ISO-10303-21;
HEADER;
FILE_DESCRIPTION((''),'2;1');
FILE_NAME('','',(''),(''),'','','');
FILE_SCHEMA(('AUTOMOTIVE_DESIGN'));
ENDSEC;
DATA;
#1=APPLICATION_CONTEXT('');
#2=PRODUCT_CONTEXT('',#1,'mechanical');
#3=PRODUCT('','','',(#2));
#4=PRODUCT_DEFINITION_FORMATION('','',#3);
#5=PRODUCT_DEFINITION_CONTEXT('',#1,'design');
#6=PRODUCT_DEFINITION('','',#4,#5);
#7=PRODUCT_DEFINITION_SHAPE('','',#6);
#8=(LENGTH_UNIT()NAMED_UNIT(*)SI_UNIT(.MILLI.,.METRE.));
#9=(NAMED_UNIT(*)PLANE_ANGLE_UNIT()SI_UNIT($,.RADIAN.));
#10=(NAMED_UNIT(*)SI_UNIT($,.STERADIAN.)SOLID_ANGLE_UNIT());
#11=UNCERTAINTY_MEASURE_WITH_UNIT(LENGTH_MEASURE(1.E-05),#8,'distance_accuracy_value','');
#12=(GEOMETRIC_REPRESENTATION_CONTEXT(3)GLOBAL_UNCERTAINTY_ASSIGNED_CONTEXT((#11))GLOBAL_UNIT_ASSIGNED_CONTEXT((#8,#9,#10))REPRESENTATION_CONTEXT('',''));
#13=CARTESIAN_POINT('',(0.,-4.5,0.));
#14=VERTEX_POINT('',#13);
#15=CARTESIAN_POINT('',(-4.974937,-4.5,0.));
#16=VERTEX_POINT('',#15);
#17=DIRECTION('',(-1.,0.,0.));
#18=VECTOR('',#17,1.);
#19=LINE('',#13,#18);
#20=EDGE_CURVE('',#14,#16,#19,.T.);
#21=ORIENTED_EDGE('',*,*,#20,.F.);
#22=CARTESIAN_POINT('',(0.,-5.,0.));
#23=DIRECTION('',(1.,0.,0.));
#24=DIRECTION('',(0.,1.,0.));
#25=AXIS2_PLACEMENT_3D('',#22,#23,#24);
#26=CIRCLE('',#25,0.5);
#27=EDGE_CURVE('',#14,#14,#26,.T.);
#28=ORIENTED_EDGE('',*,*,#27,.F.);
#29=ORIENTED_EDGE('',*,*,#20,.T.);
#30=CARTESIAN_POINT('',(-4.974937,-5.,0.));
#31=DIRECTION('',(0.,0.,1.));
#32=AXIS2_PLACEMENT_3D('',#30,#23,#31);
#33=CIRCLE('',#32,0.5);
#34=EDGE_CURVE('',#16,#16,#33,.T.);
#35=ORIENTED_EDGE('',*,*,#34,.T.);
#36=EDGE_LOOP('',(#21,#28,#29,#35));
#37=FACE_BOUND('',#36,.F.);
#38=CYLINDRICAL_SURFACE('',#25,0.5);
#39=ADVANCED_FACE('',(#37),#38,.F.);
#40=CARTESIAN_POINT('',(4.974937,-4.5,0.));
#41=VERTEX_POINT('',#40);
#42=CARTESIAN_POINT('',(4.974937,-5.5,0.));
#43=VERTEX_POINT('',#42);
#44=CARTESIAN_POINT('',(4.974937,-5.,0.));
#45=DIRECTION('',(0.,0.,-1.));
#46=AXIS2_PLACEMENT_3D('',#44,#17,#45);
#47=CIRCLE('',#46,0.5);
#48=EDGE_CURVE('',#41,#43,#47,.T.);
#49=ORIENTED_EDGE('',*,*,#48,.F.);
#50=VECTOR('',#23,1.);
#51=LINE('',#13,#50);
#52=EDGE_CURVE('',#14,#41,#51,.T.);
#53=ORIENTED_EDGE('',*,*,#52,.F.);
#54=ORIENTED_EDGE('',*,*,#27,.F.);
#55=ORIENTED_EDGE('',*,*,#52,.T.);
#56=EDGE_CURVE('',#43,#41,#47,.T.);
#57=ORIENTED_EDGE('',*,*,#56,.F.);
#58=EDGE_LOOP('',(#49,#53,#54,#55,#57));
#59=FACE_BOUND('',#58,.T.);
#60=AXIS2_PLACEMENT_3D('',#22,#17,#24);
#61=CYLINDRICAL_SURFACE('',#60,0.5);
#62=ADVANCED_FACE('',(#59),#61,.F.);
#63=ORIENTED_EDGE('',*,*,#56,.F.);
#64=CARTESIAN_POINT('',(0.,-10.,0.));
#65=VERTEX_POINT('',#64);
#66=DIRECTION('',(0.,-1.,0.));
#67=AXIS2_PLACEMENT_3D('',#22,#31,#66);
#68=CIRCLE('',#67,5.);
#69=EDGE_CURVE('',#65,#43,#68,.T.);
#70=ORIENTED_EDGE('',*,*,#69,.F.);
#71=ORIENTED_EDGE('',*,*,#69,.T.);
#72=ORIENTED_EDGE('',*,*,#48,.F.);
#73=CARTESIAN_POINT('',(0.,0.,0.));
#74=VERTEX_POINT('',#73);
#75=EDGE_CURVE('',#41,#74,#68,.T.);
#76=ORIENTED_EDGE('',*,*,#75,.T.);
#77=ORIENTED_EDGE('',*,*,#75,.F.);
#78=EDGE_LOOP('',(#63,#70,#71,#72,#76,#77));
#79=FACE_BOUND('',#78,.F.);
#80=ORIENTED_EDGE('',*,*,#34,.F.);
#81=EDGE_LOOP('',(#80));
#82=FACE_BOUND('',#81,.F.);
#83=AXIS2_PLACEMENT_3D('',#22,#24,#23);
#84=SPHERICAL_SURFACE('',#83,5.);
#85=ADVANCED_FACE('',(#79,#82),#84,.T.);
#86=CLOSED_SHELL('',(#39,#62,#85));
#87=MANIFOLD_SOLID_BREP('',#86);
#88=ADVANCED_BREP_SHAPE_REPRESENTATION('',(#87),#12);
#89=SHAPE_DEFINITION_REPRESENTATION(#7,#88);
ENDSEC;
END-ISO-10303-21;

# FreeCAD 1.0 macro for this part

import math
import FreeCAD as App
import Part
import Sketcher

V = App.Vector
Q = App.Units.Quantity

doc = App.newDocument("Part")
params = doc.addObject("Spreadsheet::Sheet", "Params")
for row, (alias, value) in enumerate([
    ("sketch1_radius", "5 mm"),
    ("revolution_angle", "360 deg"),
    ("sketch2_diameter", "1 mm"),
    ("pocket1_length", "10 mm"),
], start=1):
    params.set(f"A{row}", alias)
    params.set(f"B{row}", "=" + value)
    params.setAlias(f"B{row}", alias)

body = doc.addObject("PartDesign::Body", "Body")

# Sketch on XY plane
sketch1 = doc.addObject("Sketcher::SketchObject", "Sketch")
body.addObject(sketch1)
sketch1.AttachmentSupport = (doc.XY_Plane, [""])
sketch1.MapMode = "FlatFace"
sketch1.addGeometry(Part.ArcOfCircle(Part.Circle(V(0, -5, 0), V(0, 0, 1), 5), math.radians(-90), math.radians(90)), False)
sketch1.addGeometry(Part.LineSegment(V(0, 0, 0), V(0, -10, 0)), False)
sketch1.addConstraint(Sketcher.Constraint("Coincident", 0, 1, 1, 2))
sketch1.addConstraint(Sketcher.Constraint("Coincident", 1, 1, 0, 2))
sketch1.addConstraint(Sketcher.Constraint("Vertical", 1))
sketch1.addConstraint(Sketcher.Constraint("Coincident", 1, 1, -1, 1))
sketch1.addConstraint(Sketcher.Constraint("PointOnObject", 0, 3, -2))
sketch1.addConstraint(Sketcher.Constraint("Radius", 0, Q("5 mm")))
sketch1.setExpression("Constraints[5]", "Params.sketch1_radius")
revolution = doc.addObject("PartDesign::Revolution", "Revolution")
body.addObject(revolution)
revolution.Profile = sketch1
revolution.ReferenceAxis = (sketch1, ["V_Axis"])
revolution.setExpression("Angle", "Params.revolution_angle")

# Sketch on YZ plane
sketch2 = doc.addObject("Sketcher::SketchObject", "Sketch001")
body.addObject(sketch2)
sketch2.AttachmentSupport = (doc.YZ_Plane, [""])
sketch2.MapMode = "FlatFace"
sketch2.addGeometry(Part.Circle(V(-5, 0, 0), V(0, 0, 1), 0.5), False)
sketch2.addConstraint(Sketcher.Constraint("PointOnObject", 0, 3, -1))
sketch2.addConstraint(Sketcher.Constraint("Diameter", 0, Q("1 mm")))
sketch2.addConstraint(Sketcher.Constraint("DistanceX", 0, 3, -1, 1, Q("5 mm")))
sketch2.setExpression("Constraints[1]", "Params.sketch2_diameter")
pocket1 = doc.addObject("PartDesign::Pocket", "Pocket")
body.addObject(pocket1)
pocket1.Profile = sketch2
pocket1.setExpression("Length", "Params.pocket1_length")
pocket1.Midplane = True

doc.recompute()
